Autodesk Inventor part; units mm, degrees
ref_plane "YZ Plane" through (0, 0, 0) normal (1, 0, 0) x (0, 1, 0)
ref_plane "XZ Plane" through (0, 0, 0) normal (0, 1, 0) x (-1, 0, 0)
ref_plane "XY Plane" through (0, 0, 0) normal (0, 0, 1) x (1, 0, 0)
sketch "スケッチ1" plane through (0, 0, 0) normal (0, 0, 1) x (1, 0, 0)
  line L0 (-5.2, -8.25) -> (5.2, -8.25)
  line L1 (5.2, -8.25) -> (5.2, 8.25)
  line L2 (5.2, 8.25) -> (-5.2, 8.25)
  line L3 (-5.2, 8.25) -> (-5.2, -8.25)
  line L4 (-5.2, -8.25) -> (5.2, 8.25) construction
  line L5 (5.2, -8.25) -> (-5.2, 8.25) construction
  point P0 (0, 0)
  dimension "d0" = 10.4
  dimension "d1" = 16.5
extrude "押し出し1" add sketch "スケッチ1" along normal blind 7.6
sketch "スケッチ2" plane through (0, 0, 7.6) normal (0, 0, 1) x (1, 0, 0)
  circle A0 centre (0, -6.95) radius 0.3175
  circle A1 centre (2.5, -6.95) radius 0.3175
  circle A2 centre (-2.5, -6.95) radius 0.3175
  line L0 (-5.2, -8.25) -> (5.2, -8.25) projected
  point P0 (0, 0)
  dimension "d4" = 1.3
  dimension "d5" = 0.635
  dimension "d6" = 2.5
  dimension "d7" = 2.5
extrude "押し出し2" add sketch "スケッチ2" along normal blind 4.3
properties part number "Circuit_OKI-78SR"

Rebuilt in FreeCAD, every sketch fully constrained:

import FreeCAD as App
import Part
import Sketcher
from FreeCAD import Vector
Q = App.Units.Quantity


def add_polygon(sketch, points):
    """Adds a closed chain of lines whose ends are joined by coincident constraints."""
    first, n = sketch.GeometryCount, len(points)
    for a, b in zip(points, points[1:] + points[:1]):
        sketch.addGeometry(Part.LineSegment(App.Vector(*a, 0), App.Vector(*b, 0)), False)
    for i in range(n):
        sketch.addConstraint(Sketcher.Constraint("Coincident", first + i, 2, first + (i + 1) % n, 1))

doc = App.newDocument("Part")
body = doc.addObject("PartDesign::Body", "Body")

sketch1 = body.newObject("Sketcher::SketchObject", "Sketch")
sketch1.AttachmentSupport = (doc.getObject("XY_Plane"), [""])
sketch1.MapMode = "FlatFace"
add_polygon(sketch1, [(-5, 8), (-5, -8), (5, -8), (5, 8)])
sketch1.addConstraint(Sketcher.Constraint("Vertical", 0))
sketch1.addConstraint(Sketcher.Constraint("Horizontal", 1))
sketch1.addConstraint(Sketcher.Constraint("Vertical", 2))
sketch1.addConstraint(Sketcher.Constraint("Horizontal", 3))
sketch1.addConstraint(Sketcher.Constraint("Symmetric", 0, 2, 2, 2, -1, 1))
sketch1.addConstraint(Sketcher.Constraint("DistanceX", 1, 1, 1, 2, Q("10.4 mm")))
sketch1.addConstraint(Sketcher.Constraint("DistanceY", 0, 2, 0, 1, Q("16.5 mm")))
pad1 = body.newObject("PartDesign::Pad", "Pad")
pad1.Profile = sketch1
pad1.Length = 7.6

sketch2 = body.newObject("Sketcher::SketchObject", "Sketch001")
sketch2.AttachmentSupport = (doc.getObject("XY_Plane"), [""])
sketch2.MapMode = "FlatFace"
sketch2.AttachmentOffset = App.Placement(Vector(0, 0, 7.6), App.Rotation())
sketch2.addGeometry(Part.Circle(Vector(0, -6.95, 0), Vector(0, 0, 1), 0.32), False)
sketch2.addGeometry(Part.Circle(Vector(2.5, -6.95, 0), Vector(0, 0, 1), 0.32), False)
sketch2.addGeometry(Part.Circle(Vector(-2.5, -6.95, 0), Vector(0, 0, 1), 0.32), False)
sketch2.addConstraint(Sketcher.Constraint("Equal", 0, 1))
sketch2.addConstraint(Sketcher.Constraint("Equal", 1, 2))
sketch2.addConstraint(Sketcher.Constraint("Symmetric", 1, 3, 2, 3, -2))
sketch2.addConstraint(Sketcher.Constraint("PointOnObject", 0, 3, -2))
sketch2.addConstraint(Sketcher.Constraint("Horizontal", 0, 3, 1, 3))
sketch2.addConstraint(Sketcher.Constraint("Diameter", 0, Q("0.635 mm")))
sketch2.addConstraint(Sketcher.Constraint("DistanceX", -1, 1, 1, 3, Q("2.5 mm")))
sketch2.addConstraint(Sketcher.Constraint("DistanceY", 0, 3, -1, 1, Q("6.95 mm")))
pad2 = body.newObject("PartDesign::Pad", "Pad001")
pad2.Profile = sketch2
pad2.Length = 4.3

doc.recompute()
